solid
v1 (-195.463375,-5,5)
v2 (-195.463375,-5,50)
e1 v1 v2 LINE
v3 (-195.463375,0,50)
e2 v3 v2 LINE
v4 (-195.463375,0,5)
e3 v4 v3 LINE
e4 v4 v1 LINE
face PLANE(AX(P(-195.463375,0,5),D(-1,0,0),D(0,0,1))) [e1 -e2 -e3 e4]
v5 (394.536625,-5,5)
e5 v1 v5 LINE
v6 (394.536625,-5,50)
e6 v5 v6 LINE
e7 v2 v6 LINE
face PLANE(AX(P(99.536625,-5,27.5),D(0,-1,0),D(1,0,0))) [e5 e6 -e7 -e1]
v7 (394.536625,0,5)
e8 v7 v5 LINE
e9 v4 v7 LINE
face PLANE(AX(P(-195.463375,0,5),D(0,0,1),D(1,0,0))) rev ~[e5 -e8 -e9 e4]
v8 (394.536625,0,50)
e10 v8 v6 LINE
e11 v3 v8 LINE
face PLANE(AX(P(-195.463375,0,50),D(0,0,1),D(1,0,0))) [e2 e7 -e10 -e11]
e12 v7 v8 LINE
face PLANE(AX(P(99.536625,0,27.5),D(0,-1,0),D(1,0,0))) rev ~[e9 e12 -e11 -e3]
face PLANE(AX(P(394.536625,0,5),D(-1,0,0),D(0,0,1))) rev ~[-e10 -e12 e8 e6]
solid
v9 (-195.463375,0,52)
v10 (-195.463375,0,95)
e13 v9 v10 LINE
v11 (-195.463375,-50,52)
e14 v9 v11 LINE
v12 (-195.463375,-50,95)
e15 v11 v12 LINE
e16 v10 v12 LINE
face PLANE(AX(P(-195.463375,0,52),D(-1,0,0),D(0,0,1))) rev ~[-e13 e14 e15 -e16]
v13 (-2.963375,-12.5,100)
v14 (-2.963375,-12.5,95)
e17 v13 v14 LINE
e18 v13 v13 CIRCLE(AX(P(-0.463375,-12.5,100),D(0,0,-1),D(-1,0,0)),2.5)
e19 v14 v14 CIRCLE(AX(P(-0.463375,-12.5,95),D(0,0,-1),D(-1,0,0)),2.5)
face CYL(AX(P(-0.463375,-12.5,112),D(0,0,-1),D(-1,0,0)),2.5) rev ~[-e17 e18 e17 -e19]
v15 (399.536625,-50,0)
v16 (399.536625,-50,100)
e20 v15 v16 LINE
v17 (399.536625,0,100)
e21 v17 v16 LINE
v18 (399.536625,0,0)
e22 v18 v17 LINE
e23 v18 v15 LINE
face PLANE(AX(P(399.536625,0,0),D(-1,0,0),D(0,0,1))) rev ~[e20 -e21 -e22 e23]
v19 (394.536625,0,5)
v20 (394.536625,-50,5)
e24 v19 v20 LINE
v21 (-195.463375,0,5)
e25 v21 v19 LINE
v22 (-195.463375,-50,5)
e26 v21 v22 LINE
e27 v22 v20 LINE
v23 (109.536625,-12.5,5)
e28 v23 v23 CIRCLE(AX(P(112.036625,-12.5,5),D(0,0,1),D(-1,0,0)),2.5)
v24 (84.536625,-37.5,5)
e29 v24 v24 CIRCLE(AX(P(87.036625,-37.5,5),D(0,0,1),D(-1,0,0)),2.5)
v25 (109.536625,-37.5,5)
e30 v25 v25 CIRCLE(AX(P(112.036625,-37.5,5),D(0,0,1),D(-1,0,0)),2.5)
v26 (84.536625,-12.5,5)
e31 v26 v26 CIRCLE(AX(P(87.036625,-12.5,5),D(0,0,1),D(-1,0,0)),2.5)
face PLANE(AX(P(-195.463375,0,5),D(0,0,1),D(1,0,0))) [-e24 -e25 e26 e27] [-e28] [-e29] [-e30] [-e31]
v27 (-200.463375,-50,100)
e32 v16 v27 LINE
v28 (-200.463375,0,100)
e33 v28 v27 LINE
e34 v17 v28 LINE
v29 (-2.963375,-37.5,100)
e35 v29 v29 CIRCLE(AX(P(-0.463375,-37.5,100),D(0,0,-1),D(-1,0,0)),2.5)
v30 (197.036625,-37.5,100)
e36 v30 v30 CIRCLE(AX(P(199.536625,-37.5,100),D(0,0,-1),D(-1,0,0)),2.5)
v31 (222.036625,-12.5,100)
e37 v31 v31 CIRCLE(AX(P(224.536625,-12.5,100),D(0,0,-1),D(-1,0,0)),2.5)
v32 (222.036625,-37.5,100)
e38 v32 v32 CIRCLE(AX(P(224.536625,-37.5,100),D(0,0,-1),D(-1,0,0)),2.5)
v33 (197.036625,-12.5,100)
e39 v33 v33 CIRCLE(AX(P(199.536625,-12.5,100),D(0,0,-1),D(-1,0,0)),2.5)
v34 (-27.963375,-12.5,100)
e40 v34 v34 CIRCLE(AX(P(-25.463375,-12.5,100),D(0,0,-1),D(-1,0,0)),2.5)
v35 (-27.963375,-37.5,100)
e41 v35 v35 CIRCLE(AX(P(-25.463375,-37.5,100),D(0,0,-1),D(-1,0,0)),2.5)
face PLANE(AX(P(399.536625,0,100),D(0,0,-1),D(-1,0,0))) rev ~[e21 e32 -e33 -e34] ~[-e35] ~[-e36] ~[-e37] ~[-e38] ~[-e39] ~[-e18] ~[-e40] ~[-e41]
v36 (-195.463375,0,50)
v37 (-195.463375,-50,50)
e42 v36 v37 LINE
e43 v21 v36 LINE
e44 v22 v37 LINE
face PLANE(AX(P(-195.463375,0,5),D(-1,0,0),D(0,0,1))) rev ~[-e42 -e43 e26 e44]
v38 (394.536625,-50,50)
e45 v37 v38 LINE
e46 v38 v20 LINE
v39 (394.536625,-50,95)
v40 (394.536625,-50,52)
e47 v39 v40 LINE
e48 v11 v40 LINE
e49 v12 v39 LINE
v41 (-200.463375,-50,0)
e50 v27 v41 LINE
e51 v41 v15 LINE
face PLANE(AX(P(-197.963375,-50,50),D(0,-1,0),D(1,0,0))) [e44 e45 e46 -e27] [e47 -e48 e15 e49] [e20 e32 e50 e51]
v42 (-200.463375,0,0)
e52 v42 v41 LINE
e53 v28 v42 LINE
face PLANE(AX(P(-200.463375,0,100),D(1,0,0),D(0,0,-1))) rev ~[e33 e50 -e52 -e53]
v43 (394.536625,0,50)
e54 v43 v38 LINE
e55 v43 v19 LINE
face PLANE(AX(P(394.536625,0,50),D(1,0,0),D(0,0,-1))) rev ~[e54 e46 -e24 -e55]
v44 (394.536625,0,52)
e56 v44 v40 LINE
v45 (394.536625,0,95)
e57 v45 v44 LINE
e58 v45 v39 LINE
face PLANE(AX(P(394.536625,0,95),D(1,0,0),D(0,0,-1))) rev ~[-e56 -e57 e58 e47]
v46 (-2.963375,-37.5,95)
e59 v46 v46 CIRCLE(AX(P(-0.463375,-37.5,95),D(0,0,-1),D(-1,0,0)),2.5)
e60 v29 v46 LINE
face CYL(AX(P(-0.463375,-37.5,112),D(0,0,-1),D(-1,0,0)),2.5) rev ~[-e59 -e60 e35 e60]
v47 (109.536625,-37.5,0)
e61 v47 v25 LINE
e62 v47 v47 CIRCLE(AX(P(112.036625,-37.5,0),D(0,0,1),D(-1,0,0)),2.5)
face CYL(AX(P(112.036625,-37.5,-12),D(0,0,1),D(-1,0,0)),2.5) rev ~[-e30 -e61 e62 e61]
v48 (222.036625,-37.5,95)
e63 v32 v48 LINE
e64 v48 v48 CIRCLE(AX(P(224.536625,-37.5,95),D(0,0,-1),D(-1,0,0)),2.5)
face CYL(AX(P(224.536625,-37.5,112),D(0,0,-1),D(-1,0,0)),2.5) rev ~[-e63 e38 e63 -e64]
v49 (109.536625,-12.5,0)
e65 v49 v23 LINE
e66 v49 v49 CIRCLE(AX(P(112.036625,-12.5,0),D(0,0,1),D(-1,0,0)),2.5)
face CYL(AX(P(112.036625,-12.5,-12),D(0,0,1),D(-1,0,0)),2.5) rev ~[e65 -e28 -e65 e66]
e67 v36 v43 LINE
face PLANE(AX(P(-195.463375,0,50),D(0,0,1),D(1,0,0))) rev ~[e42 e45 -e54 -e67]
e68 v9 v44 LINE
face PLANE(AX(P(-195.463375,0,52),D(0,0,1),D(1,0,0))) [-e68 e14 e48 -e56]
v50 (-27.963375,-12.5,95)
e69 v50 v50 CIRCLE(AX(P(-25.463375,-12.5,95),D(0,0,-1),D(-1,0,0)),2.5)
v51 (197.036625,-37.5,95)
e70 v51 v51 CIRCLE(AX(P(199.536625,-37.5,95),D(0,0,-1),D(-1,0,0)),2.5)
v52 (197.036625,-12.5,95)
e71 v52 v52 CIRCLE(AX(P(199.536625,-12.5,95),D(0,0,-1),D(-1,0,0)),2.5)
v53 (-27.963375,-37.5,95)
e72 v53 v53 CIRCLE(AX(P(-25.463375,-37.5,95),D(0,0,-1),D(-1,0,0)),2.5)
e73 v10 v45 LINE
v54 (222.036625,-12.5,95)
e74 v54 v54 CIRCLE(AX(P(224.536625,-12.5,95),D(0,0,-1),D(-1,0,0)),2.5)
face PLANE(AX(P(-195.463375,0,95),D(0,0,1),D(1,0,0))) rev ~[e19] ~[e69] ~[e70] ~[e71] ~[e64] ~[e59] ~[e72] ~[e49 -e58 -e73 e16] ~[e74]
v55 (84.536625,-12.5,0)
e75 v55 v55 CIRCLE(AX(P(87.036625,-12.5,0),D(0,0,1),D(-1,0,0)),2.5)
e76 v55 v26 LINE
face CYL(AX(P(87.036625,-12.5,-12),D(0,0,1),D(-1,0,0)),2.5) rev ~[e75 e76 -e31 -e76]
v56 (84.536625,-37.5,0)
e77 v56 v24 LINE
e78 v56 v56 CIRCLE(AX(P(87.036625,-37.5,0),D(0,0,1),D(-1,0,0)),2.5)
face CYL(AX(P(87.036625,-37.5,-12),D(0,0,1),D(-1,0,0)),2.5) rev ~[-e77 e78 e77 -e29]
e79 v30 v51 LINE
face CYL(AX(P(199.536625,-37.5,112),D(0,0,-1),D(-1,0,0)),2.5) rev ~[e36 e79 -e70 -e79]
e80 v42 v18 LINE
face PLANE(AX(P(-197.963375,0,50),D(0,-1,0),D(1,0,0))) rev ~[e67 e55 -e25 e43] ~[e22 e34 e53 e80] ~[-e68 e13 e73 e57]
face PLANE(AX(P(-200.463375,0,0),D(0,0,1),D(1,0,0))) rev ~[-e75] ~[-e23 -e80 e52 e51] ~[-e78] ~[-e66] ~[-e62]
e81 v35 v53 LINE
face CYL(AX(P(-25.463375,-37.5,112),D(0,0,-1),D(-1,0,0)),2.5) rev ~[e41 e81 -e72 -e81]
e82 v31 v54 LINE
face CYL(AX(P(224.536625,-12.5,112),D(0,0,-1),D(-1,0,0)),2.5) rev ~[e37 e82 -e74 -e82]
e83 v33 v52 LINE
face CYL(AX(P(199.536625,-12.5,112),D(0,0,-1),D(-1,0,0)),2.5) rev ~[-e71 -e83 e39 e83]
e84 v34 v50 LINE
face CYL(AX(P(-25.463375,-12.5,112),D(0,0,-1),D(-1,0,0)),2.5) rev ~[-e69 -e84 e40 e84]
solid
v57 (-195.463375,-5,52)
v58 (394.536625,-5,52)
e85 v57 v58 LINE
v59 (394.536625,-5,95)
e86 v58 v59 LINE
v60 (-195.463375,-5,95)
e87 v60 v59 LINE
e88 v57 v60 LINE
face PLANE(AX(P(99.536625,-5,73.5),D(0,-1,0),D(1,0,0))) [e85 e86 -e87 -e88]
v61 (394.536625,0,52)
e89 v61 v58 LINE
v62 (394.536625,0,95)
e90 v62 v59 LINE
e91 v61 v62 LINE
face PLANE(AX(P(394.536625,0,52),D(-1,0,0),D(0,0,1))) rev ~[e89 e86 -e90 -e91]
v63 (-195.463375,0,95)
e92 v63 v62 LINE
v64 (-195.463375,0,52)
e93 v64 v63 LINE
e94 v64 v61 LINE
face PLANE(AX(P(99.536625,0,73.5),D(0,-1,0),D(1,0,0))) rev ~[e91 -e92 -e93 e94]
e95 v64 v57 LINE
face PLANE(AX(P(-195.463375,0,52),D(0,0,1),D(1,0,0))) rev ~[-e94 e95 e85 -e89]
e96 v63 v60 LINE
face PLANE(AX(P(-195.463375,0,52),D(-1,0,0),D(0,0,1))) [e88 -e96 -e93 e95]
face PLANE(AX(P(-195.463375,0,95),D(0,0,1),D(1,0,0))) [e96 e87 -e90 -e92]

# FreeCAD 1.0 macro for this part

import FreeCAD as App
import Part
import Sketcher
from FreeCAD import Vector
Q = App.Units.Quantity


def add_polygon(sketch, points):
    """Adds a closed chain of lines whose ends are joined by coincident constraints."""
    first, n = sketch.GeometryCount, len(points)
    for a, b in zip(points, points[1:] + points[:1]):
        sketch.addGeometry(Part.LineSegment(App.Vector(*a, 0), App.Vector(*b, 0)), False)
    for i in range(n):
        sketch.addConstraint(Sketcher.Constraint("Coincident", first + i, 2, first + (i + 1) % n, 1))

doc = App.newDocument("Part")
body = doc.addObject("PartDesign::Body", "Body")

# Sketch on XZ plane
sketch1 = body.newObject("Sketcher::SketchObject", "Sketch")
sketch1.AttachmentSupport = (doc.getObject("XZ_Plane"), [""])
sketch1.MapMode = "FlatFace"
add_polygon(sketch1, [(-195, 50), (-195, 5), (395, 5), (395, 50)])  # lines 0-3
sketch1.addConstraint(Sketcher.Constraint("Vertical", 0))
sketch1.addConstraint(Sketcher.Constraint("Horizontal", 1))
sketch1.addConstraint(Sketcher.Constraint("Vertical", 2))
sketch1.addConstraint(Sketcher.Constraint("Horizontal", 3))
sketch1.addConstraint(Sketcher.Constraint("DistanceX", 1, 1, 1, 2, Q("590 mm")))
sketch1.addConstraint(Sketcher.Constraint("DistanceY", 0, 2, 0, 1, Q("45 mm")))
sketch1.addConstraint(Sketcher.Constraint("DistanceY", -1, 1, 0, 2, Q("5 mm")))
sketch1.addConstraint(Sketcher.Constraint("DistanceX", 0, 2, -1, 1, Q("195.463375 mm")))
pad1 = body.newObject("PartDesign::Pad", "Pad")
pad1.Profile = sketch1
pad1.Length = 5
body2 = doc.addObject("PartDesign::Body", "Body001")

# Sketch on XZ plane
sketch2 = body2.newObject("Sketcher::SketchObject", "Sketch001")
sketch2.AttachmentSupport = (doc.getObject("XZ_Plane001"), [""])
sketch2.MapMode = "FlatFace"
add_polygon(sketch2, [(-195, 95), (-195, 52), (395, 52), (395, 95)])  # lines 0-3
sketch2.addConstraint(Sketcher.Constraint("Vertical", 0))
sketch2.addConstraint(Sketcher.Constraint("Horizontal", 1))
sketch2.addConstraint(Sketcher.Constraint("Vertical", 2))
sketch2.addConstraint(Sketcher.Constraint("Horizontal", 3))
sketch2.addConstraint(Sketcher.Constraint("DistanceX", 1, 1, 1, 2, Q("590 mm")))
sketch2.addConstraint(Sketcher.Constraint("DistanceY", 0, 2, 0, 1, Q("43 mm")))
sketch2.addConstraint(Sketcher.Constraint("DistanceY", -1, 1, 0, 2, Q("52 mm")))
sketch2.addConstraint(Sketcher.Constraint("DistanceX", 0, 2, -1, 1, Q("195.463375 mm")))
pad2 = body2.newObject("PartDesign::Pad", "Pad001")
pad2.Profile = sketch2
pad2.Length = 5
body3 = doc.addObject("PartDesign::Body", "Body002")

# Sketch on XZ plane
sketch3 = body3.newObject("Sketcher::SketchObject", "Sketch002")
sketch3.AttachmentSupport = (doc.getObject("XZ_Plane002"), [""])
sketch3.MapMode = "FlatFace"
add_polygon(sketch3, [(-200, 100), (-200, 0), (400, 0), (400, 100)])  # lines 0-3
add_polygon(sketch3, [(395, 5), (-195, 5), (-195, 50), (395, 50)])  # lines 4-7
add_polygon(sketch3, [(395, 52), (-195, 52), (-195, 95), (395, 95)])  # lines 8-11
sketch3.addConstraint(Sketcher.Constraint("Vertical", 0))
sketch3.addConstraint(Sketcher.Constraint("Horizontal", 1))
sketch3.addConstraint(Sketcher.Constraint("Vertical", 2))
sketch3.addConstraint(Sketcher.Constraint("Horizontal", 3))
sketch3.addConstraint(Sketcher.Constraint("Horizontal", 4))
sketch3.addConstraint(Sketcher.Constraint("Vertical", 5))
sketch3.addConstraint(Sketcher.Constraint("Horizontal", 6))
sketch3.addConstraint(Sketcher.Constraint("Vertical", 7))
sketch3.addConstraint(Sketcher.Constraint("Horizontal", 8))
sketch3.addConstraint(Sketcher.Constraint("Vertical", 9))
sketch3.addConstraint(Sketcher.Constraint("Horizontal", 10))
sketch3.addConstraint(Sketcher.Constraint("Vertical", 11))
sketch3.addConstraint(Sketcher.Constraint("PointOnObject", 0, 2, -1))
sketch3.addConstraint(Sketcher.Constraint("Vertical", 5, 2, 8, 2))
sketch3.addConstraint(Sketcher.Constraint("Vertical", 7, 2, 10, 2))
sketch3.addConstraint(Sketcher.Constraint("DistanceX", 1, 1, 1, 2, Q("600 mm")))
sketch3.addConstraint(Sketcher.Constraint("DistanceX", 4, 2, 4, 1, Q("590 mm")))
sketch3.addConstraint(Sketcher.Constraint("DistanceY", 0, 2, 0, 1, Q("100 mm")))
sketch3.addConstraint(Sketcher.Constraint("DistanceY", 5, 1, 5, 2, Q("45 mm")))
sketch3.addConstraint(Sketcher.Constraint("DistanceY", 9, 1, 9, 2, Q("43 mm")))
sketch3.addConstraint(Sketcher.Constraint("DistanceY", -1, 1, 4, 2, Q("5 mm")))
sketch3.addConstraint(Sketcher.Constraint("DistanceY", -1, 1, 8, 2, Q("52 mm")))
sketch3.addConstraint(Sketcher.Constraint("DistanceX", 0, 2, 4, 2, Q("5 mm")))
sketch3.addConstraint(Sketcher.Constraint("DistanceX", 0, 2, -1, 1, Q("200.463375 mm")))
pad3 = body3.newObject("PartDesign::Pad", "Pad002")
pad3.Profile = sketch3
pad3.Length = 50

# Sketch on XY plane
sketch4 = body3.newObject("Sketcher::SketchObject", "Sketch003")
sketch4.AttachmentSupport = (doc.getObject("XY_Plane002"), [""])
sketch4.MapMode = "FlatFace"
sketch4.addGeometry(Part.Circle(Vector(87, -37.5, 0), Vector(0, 0, 1), 2.5), False)
sketch4.addGeometry(Part.Circle(Vector(112, -37.5, 0), Vector(0, 0, 1), 2.5), False)
sketch4.addGeometry(Part.Circle(Vector(112, -12.5, 0), Vector(0, 0, 1), 2.5), False)
sketch4.addGeometry(Part.Circle(Vector(87, -12.5, 0), Vector(0, 0, 1), 2.5), False)
sketch4.addConstraint(Sketcher.Constraint("Equal", 0, 1))
sketch4.addConstraint(Sketcher.Constraint("Equal", 1, 2))
sketch4.addConstraint(Sketcher.Constraint("Equal", 2, 3))
sketch4.addConstraint(Sketcher.Constraint("Horizontal", 0, 3, 1, 3))
sketch4.addConstraint(Sketcher.Constraint("Horizontal", 2, 3, 3, 3))
sketch4.addConstraint(Sketcher.Constraint("Vertical", 1, 3, 2, 3))
sketch4.addConstraint(Sketcher.Constraint("Vertical", 0, 3, 3, 3))
sketch4.addConstraint(Sketcher.Constraint("Diameter", 0, Q("5 mm")))
sketch4.addConstraint(Sketcher.Constraint("DistanceX", 0, 3, 1, 3, Q("25 mm")))
sketch4.addConstraint(Sketcher.Constraint("DistanceY", 1, 3, 2, 3, Q("25 mm")))
sketch4.addConstraint(Sketcher.Constraint("DistanceY", 0, 3, -1, 1, Q("37.5 mm")))
sketch4.addConstraint(Sketcher.Constraint("DistanceX", -1, 1, 0, 3, Q("87.036625 mm")))
doc.recompute()
hole = body3.newObject("PartDesign::Hole", "Hole")
hole.Profile = sketch4
hole.ThreadType = "None"
hole.Diameter = 5
hole.DepthType = "Dimension"
hole.Depth = 12
hole.DrillPoint = "Angled"
hole.DrillPointAngle = 118
hole.Reversed = True

# Sketch on XY plane
sketch5 = body3.newObject("Sketcher::SketchObject", "Sketch004")
sketch5.AttachmentSupport = (doc.getObject("XY_Plane002"), [""])
sketch5.MapMode = "FlatFace"
sketch5.AttachmentOffset = App.Placement(Vector(0, 0, 100), App.Rotation())
sketch5.addGeometry(Part.Circle(Vector(199.5, -12.5, 0), Vector(0, 0, 1), 2.5), False)
sketch5.addGeometry(Part.Circle(Vector(224.5, -12.5, 0), Vector(0, 0, 1), 2.5), False)
sketch5.addGeometry(Part.Circle(Vector(224.5, -37.5, 0), Vector(0, 0, 1), 2.5), False)
sketch5.addGeometry(Part.Circle(Vector(199.5, -37.5, 0), Vector(0, 0, 1), 2.5), False)
sketch5.addGeometry(Part.Circle(Vector(-25.5, -12.5, 0), Vector(0, 0, 1), 2.5), False)
sketch5.addGeometry(Part.Circle(Vector(-0.5, -12.5, 0), Vector(0, 0, 1), 2.5), False)
sketch5.addGeometry(Part.Circle(Vector(-0.5, -37.5, 0), Vector(0, 0, 1), 2.5), False)
sketch5.addGeometry(Part.Circle(Vector(-25.5, -37.5, 0), Vector(0, 0, 1), 2.5), False)
sketch5.addConstraint(Sketcher.Constraint("Equal", 0, 1))
sketch5.addConstraint(Sketcher.Constraint("Equal", 1, 2))
sketch5.addConstraint(Sketcher.Constraint("Equal", 2, 3))
sketch5.addConstraint(Sketcher.Constraint("Equal", 3, 4))
sketch5.addConstraint(Sketcher.Constraint("Equal", 4, 5))
sketch5.addConstraint(Sketcher.Constraint("Equal", 5, 6))
sketch5.addConstraint(Sketcher.Constraint("Equal", 6, 7))
sketch5.addConstraint(Sketcher.Constraint("Horizontal", 0, 3, 1, 3))
sketch5.addConstraint(Sketcher.Constraint("Horizontal", 2, 3, 3, 3))
sketch5.addConstraint(Sketcher.Constraint("Horizontal", 1, 3, 4, 3))
sketch5.addConstraint(Sketcher.Constraint("Horizontal", 4, 3, 5, 3))
sketch5.addConstraint(Sketcher.Constraint("Horizontal", 3, 3, 6, 3))
sketch5.addConstraint(Sketcher.Constraint("Horizontal", 6, 3, 7, 3))
sketch5.addConstraint(Sketcher.Constraint("Vertical", 1, 3, 2, 3))
sketch5.addConstraint(Sketcher.Constraint("Vertical", 0, 3, 3, 3))
sketch5.addConstraint(Sketcher.Constraint("Vertical", 5, 3, 6, 3))
sketch5.addConstraint(Sketcher.Constraint("Vertical", 4, 3, 7, 3))
sketch5.addConstraint(Sketcher.Constraint("Diameter", 0, Q("5 mm")))
sketch5.addConstraint(Sketcher.Constraint("DistanceX", 0, 3, 1, 3, Q("25 mm")))
sketch5.addConstraint(Sketcher.Constraint("DistanceY", 2, 3, 1, 3, Q("25 mm")))
sketch5.addConstraint(Sketcher.Constraint("DistanceX", 4, 3, 0, 3, Q("225 mm")))
sketch5.addConstraint(Sketcher.Constraint("DistanceX", 4, 3, 5, 3, Q("25 mm")))
sketch5.addConstraint(Sketcher.Constraint("DistanceY", 0, 3, -1, 1, Q("12.5 mm")))
sketch5.addConstraint(Sketcher.Constraint("DistanceX", -1, 1, 0, 3, Q("199.536625 mm")))
doc.recompute()
hole2 = body3.newObject("PartDesign::Hole", "Hole001")
hole2.Profile = sketch5
hole2.ThreadType = "None"
hole2.Diameter = 5
hole2.DepthType = "Dimension"
hole2.Depth = 12
hole2.DrillPoint = "Angled"
hole2.DrillPointAngle = 118

doc.recompute()
